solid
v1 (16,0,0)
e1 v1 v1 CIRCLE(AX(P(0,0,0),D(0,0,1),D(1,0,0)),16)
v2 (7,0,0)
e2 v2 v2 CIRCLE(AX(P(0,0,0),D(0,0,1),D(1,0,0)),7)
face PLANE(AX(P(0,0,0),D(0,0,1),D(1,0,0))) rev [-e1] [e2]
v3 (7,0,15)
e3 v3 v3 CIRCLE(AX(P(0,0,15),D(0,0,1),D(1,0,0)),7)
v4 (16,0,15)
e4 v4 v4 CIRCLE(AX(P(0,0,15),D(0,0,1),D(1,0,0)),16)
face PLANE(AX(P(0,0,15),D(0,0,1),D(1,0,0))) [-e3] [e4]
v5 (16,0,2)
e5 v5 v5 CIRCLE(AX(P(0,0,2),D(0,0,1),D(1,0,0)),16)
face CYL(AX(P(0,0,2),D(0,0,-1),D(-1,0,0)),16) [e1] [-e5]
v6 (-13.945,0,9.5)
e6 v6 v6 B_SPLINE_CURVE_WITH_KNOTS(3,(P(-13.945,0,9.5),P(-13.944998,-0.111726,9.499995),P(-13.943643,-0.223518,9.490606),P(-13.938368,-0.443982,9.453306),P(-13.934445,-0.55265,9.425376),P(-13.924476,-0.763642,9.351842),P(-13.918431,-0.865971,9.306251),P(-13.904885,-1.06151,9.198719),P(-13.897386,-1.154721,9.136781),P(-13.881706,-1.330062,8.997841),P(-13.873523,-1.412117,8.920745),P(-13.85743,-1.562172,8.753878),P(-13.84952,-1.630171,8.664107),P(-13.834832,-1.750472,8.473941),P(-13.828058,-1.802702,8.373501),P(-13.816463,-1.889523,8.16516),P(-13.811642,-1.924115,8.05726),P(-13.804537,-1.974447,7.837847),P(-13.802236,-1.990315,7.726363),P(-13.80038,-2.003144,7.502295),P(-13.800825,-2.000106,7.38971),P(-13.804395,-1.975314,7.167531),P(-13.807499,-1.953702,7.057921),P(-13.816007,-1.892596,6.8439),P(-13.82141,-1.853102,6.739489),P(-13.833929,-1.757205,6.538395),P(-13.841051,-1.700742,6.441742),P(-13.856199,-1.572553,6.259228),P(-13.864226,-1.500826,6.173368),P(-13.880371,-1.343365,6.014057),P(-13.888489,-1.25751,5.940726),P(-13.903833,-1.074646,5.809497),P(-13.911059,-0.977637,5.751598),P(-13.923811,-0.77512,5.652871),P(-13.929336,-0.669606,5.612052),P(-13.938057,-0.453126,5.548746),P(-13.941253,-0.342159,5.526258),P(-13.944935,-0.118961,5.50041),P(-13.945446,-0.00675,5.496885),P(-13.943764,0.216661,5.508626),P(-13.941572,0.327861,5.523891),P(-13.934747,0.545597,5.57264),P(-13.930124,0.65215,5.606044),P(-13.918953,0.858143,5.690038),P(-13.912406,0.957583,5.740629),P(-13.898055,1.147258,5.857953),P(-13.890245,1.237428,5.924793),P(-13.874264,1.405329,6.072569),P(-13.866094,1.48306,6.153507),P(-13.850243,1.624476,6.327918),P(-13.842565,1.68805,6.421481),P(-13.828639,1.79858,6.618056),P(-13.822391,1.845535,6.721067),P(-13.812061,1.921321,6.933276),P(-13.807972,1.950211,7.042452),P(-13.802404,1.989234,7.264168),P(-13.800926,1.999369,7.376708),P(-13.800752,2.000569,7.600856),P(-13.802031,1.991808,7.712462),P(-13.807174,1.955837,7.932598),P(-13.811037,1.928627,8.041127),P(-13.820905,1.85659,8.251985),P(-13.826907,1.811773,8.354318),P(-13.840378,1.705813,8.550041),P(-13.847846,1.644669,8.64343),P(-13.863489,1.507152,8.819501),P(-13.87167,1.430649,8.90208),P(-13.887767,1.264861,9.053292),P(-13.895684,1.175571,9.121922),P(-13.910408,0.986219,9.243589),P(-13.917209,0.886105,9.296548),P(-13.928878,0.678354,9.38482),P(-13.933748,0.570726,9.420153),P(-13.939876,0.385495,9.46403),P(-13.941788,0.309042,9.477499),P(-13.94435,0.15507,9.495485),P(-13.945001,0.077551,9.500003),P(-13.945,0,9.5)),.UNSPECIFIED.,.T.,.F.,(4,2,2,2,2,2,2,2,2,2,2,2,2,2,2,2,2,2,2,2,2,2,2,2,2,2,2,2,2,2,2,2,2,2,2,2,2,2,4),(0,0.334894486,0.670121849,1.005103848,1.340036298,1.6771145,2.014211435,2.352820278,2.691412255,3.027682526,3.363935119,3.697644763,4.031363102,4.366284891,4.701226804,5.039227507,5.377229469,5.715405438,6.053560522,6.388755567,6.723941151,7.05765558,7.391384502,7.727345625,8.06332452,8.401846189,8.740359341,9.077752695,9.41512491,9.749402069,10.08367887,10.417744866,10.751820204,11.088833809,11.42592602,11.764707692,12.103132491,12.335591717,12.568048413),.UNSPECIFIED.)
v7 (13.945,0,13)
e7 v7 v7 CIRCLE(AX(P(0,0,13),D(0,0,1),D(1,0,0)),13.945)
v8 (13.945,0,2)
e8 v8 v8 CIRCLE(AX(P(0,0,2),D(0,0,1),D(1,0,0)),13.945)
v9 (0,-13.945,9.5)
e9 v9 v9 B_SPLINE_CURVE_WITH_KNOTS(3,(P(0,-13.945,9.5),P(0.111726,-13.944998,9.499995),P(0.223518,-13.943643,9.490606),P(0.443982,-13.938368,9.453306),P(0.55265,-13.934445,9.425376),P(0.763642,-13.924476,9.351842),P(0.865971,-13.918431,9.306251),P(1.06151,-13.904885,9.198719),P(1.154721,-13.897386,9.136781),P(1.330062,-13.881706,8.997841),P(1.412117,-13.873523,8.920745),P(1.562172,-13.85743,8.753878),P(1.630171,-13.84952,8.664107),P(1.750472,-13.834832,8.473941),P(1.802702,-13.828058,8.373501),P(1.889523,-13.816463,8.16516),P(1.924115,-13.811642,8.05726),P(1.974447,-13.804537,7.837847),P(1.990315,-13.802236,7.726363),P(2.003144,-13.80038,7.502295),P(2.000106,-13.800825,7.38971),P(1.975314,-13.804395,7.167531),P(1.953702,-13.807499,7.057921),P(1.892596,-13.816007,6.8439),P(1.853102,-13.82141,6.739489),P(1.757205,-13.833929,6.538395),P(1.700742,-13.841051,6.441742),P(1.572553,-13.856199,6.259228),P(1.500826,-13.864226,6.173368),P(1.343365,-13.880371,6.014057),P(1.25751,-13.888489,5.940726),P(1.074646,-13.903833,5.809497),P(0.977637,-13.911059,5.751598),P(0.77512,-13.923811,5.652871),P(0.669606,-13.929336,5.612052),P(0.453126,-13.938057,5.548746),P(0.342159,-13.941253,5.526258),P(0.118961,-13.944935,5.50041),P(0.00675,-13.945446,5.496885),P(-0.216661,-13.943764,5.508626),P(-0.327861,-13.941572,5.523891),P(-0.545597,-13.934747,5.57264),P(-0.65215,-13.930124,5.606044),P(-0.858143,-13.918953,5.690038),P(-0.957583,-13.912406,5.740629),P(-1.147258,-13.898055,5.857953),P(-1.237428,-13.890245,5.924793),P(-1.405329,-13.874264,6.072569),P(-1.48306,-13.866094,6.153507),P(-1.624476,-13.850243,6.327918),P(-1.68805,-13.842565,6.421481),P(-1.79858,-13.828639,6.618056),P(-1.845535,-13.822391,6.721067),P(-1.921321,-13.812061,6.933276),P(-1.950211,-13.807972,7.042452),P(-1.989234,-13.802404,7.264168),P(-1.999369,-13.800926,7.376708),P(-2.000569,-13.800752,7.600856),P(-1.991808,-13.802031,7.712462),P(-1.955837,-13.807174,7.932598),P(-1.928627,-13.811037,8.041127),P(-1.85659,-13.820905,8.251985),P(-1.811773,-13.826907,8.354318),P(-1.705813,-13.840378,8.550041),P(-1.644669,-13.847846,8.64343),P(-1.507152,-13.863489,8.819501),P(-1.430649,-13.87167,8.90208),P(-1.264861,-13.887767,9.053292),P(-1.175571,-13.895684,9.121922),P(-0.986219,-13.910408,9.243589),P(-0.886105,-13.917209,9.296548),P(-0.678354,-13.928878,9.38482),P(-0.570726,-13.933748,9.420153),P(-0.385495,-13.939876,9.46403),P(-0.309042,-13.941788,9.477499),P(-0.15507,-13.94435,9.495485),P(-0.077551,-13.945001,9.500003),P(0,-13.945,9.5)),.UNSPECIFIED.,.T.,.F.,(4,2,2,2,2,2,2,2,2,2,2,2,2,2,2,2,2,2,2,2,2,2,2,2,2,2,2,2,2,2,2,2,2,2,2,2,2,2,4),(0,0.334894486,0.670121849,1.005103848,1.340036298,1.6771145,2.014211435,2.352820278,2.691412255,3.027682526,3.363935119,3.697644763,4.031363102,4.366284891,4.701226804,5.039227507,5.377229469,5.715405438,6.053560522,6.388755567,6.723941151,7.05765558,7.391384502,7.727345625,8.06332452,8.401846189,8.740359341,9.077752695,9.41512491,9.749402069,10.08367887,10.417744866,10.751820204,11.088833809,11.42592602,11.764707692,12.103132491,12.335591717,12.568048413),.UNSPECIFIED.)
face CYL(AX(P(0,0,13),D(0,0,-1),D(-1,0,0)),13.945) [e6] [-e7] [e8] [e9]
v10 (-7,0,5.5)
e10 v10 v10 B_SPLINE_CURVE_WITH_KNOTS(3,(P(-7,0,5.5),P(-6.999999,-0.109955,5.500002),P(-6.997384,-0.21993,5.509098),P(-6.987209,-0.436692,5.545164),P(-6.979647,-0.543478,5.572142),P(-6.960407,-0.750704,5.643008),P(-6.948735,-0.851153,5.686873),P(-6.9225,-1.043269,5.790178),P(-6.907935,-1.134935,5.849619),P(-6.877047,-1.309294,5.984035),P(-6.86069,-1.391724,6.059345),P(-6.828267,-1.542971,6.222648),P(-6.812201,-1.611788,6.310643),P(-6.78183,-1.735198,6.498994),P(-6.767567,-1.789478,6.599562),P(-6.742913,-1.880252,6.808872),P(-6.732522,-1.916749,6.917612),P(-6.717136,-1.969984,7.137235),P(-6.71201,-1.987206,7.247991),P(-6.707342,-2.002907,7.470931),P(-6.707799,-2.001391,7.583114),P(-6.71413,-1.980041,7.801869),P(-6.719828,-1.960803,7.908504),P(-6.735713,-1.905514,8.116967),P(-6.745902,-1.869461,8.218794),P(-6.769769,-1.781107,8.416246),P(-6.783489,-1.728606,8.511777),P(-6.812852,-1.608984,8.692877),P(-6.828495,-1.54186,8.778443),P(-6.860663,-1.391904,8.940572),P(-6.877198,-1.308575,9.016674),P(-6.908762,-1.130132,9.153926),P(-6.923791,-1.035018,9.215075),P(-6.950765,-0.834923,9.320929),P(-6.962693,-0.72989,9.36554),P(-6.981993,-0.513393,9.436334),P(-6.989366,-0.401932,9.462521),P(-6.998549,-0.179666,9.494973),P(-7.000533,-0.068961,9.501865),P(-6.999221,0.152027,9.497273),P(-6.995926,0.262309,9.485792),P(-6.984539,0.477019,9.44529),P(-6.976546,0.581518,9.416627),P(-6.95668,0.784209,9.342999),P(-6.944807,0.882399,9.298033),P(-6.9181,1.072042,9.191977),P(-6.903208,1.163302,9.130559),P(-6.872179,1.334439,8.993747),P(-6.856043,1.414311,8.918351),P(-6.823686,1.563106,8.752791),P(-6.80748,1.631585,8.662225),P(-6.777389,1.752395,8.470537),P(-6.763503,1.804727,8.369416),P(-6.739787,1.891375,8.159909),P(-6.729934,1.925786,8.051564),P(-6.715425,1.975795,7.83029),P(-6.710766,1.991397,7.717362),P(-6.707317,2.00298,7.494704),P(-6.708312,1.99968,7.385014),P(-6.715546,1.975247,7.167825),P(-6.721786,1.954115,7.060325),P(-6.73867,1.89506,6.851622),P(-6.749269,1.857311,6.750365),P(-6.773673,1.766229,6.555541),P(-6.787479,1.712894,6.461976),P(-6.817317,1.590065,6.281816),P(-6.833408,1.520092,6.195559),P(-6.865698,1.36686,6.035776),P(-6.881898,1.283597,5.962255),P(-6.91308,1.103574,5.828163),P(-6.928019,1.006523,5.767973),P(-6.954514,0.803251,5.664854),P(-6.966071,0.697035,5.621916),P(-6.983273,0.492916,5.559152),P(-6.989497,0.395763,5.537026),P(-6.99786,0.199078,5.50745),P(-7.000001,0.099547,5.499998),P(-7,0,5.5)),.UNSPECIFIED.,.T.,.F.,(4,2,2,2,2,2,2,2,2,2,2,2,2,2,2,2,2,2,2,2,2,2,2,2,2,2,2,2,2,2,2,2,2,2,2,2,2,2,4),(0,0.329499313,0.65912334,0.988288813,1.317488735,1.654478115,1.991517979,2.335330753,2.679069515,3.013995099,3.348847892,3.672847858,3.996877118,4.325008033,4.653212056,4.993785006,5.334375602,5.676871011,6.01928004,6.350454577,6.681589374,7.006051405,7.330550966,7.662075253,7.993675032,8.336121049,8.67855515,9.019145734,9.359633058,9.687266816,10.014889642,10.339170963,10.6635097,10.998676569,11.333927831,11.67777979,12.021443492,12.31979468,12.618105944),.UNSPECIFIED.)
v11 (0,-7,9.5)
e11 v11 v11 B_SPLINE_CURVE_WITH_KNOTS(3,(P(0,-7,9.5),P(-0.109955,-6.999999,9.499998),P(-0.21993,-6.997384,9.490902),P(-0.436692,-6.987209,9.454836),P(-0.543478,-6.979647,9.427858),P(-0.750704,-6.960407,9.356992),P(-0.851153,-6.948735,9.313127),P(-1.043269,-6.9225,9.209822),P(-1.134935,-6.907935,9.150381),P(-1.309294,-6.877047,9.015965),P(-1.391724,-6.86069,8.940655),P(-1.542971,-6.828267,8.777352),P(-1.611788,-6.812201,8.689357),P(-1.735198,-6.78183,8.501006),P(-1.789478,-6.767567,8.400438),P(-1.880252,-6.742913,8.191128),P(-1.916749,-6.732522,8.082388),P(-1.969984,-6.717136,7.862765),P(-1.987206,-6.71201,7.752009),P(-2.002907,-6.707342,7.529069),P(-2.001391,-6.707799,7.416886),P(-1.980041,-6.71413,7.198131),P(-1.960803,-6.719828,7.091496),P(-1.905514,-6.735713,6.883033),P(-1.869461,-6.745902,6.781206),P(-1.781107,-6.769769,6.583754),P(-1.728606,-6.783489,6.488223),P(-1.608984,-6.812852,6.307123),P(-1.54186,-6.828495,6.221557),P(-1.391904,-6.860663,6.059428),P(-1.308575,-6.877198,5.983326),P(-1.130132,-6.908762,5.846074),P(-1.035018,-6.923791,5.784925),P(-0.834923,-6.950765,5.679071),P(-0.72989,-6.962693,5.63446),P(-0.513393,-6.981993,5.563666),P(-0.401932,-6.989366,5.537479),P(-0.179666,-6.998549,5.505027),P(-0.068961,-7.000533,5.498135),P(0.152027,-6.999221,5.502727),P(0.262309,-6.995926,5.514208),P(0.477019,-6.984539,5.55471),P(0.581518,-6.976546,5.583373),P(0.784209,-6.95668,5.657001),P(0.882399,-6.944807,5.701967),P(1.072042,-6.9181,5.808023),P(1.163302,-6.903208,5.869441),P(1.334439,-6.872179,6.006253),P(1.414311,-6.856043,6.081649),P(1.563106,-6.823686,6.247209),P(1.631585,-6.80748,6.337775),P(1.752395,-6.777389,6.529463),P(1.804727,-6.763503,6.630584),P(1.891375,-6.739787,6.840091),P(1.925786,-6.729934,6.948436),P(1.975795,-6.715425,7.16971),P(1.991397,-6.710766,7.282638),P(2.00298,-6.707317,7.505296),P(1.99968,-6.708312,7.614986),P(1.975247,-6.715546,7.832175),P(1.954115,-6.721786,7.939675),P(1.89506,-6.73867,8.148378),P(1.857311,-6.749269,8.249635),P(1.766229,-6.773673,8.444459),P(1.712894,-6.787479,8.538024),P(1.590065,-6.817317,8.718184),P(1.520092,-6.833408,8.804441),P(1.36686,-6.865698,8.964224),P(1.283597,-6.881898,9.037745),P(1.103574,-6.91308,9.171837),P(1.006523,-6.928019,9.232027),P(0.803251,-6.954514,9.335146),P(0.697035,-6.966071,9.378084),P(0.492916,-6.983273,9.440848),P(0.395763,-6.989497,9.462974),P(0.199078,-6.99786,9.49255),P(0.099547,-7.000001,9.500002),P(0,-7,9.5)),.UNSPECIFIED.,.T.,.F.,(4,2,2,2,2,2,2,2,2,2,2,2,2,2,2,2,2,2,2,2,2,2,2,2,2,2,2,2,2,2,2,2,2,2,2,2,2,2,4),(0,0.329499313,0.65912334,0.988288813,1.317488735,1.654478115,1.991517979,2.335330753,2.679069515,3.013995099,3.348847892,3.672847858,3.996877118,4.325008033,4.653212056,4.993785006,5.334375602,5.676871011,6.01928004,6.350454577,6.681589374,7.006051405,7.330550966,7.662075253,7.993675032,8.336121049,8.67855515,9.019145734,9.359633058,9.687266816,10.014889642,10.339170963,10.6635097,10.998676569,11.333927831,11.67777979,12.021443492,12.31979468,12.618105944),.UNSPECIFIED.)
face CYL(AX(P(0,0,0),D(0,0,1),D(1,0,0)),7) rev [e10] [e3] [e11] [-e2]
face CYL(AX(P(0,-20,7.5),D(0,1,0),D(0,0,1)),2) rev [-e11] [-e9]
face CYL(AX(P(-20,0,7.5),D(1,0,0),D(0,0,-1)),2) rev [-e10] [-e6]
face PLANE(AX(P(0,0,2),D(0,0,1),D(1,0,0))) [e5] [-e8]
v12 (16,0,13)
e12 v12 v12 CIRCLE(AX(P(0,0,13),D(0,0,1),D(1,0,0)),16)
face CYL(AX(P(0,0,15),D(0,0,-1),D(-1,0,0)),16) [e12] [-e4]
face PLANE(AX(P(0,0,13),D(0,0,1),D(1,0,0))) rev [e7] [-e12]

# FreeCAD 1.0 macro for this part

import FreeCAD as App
import Part
import Sketcher
from FreeCAD import Vector
Q = App.Units.Quantity

doc = App.newDocument("Part")
params = doc.addObject("Spreadsheet::Sheet", "Params")
for row, (alias, value) in enumerate([
    ("sketch1_diameter", "32 mm"),
    ("pad1_length", "2 mm"),
    ("sketch2_diameter", "27.89 mm"),
    ("pad2_length", "11 mm"),
    ("sketch3_diameter", "32 mm"),
    ("pad3_length", "2 mm"),
    ("sketch4_diameter", "14 mm"),
    ("pocket1_length", "15 mm"),
    ("sketch5_diameter", "4 mm"),
    ("pocket2_length", "20 mm"),
    ("sketch6_diameter", "4 mm"),
    ("pocket3_length", "20 mm"),
], start=1):
    params.set(f"A{row}", alias)
    params.set(f"B{row}", "=" + value)
    params.setAlias(f"B{row}", alias)

body = doc.addObject("PartDesign::Body", "Body")

sketch1 = body.newObject("Sketcher::SketchObject", "Sketch")
sketch1.AttachmentSupport = (doc.getObject("XY_Plane"), [""])
sketch1.MapMode = "FlatFace"
sketch1.addGeometry(Part.Circle(Vector(0, 0, 0), Vector(0, 0, 1), 16), False)
sketch1.addConstraint(Sketcher.Constraint("Coincident", 0, 3, -1, 1))
sketch1.addConstraint(Sketcher.Constraint("Diameter", 0, Q("32 mm")))
sketch1.setExpression("Constraints[1]", "Params.sketch1_diameter")
pad1 = body.newObject("PartDesign::Pad", "Pad")
pad1.Profile = sketch1
pad1.setExpression("Length", "Params.pad1_length")

sketch2 = body.newObject("Sketcher::SketchObject", "Sketch001")
sketch2.AttachmentSupport = (doc.getObject("XY_Plane"), [""])
sketch2.MapMode = "FlatFace"
sketch2.AttachmentOffset = App.Placement(Vector(0, 0, 2), App.Rotation())
sketch2.addGeometry(Part.Circle(Vector(0, 0, 0), Vector(0, 0, 1), 13.945), False)
sketch2.addConstraint(Sketcher.Constraint("Coincident", 0, 3, -1, 1))
sketch2.addConstraint(Sketcher.Constraint("Diameter", 0, Q("27.89 mm")))
sketch2.setExpression("Constraints[1]", "Params.sketch2_diameter")
pad2 = body.newObject("PartDesign::Pad", "Pad001")
pad2.Profile = sketch2
pad2.setExpression("Length", "Params.pad2_length")

sketch3 = body.newObject("Sketcher::SketchObject", "Sketch002")
sketch3.AttachmentSupport = (doc.getObject("XY_Plane"), [""])
sketch3.MapMode = "FlatFace"
sketch3.AttachmentOffset = App.Placement(Vector(0, 0, 13), App.Rotation())
sketch3.addGeometry(Part.Circle(Vector(0, 0, 0), Vector(0, 0, 1), 16), False)
sketch3.addConstraint(Sketcher.Constraint("Coincident", 0, 3, -1, 1))
sketch3.addConstraint(Sketcher.Constraint("Diameter", 0, Q("32 mm")))
sketch3.setExpression("Constraints[1]", "Params.sketch3_diameter")
pad3 = body.newObject("PartDesign::Pad", "Pad002")
pad3.Profile = sketch3
pad3.setExpression("Length", "Params.pad3_length")

sketch4 = body.newObject("Sketcher::SketchObject", "Sketch003")
sketch4.AttachmentSupport = (doc.getObject("XY_Plane"), [""])
sketch4.MapMode = "FlatFace"
sketch4.AttachmentOffset = App.Placement(Vector(0, 0, 15), App.Rotation())
sketch4.addGeometry(Part.Circle(Vector(0, 0, 0), Vector(0, 0, 1), 7), False)
sketch4.addConstraint(Sketcher.Constraint("Coincident", 0, 3, -1, 1))
sketch4.addConstraint(Sketcher.Constraint("Diameter", 0, Q("14 mm")))
sketch4.setExpression("Constraints[1]", "Params.sketch4_diameter")
pocket1 = body.newObject("PartDesign::Pocket", "Pocket")
pocket1.Profile = sketch4
pocket1.setExpression("Length", "Params.pocket1_length")

sketch5 = body.newObject("Sketcher::SketchObject", "Sketch004")
sketch5.AttachmentSupport = (doc.getObject("XZ_Plane"), [""])
sketch5.MapMode = "FlatFace"
sketch5.addGeometry(Part.Circle(Vector(0, 7.5, 0), Vector(0, 0, 1), 2), False)
sketch5.addConstraint(Sketcher.Constraint("PointOnObject", 0, 3, -2))
sketch5.addConstraint(Sketcher.Constraint("Diameter", 0, Q("4 mm")))
sketch5.addConstraint(Sketcher.Constraint("DistanceY", -1, 1, 0, 3, Q("7.5 mm")))
sketch5.setExpression("Constraints[1]", "Params.sketch5_diameter")
pocket2 = body.newObject("PartDesign::Pocket", "Pocket001")
pocket2.Profile = sketch5
pocket2.setExpression("Length", "Params.pocket2_length")
pocket2.Reversed = True

sketch6 = body.newObject("Sketcher::SketchObject", "Sketch005")
sketch6.AttachmentSupport = (doc.getObject("YZ_Plane"), [""])
sketch6.MapMode = "FlatFace"
sketch6.addGeometry(Part.Circle(Vector(0, 7.5, 0), Vector(0, 0, 1), 2), False)
sketch6.addConstraint(Sketcher.Constraint("PointOnObject", 0, 3, -2))
sketch6.addConstraint(Sketcher.Constraint("Diameter", 0, Q("4 mm")))
sketch6.addConstraint(Sketcher.Constraint("DistanceY", -1, 1, 0, 3, Q("7.5 mm")))
sketch6.setExpression("Constraints[1]", "Params.sketch6_diameter")
pocket3 = body.newObject("PartDesign::Pocket", "Pocket002")
pocket3.Profile = sketch6
pocket3.setExpression("Length", "Params.pocket3_length")

doc.recompute()
